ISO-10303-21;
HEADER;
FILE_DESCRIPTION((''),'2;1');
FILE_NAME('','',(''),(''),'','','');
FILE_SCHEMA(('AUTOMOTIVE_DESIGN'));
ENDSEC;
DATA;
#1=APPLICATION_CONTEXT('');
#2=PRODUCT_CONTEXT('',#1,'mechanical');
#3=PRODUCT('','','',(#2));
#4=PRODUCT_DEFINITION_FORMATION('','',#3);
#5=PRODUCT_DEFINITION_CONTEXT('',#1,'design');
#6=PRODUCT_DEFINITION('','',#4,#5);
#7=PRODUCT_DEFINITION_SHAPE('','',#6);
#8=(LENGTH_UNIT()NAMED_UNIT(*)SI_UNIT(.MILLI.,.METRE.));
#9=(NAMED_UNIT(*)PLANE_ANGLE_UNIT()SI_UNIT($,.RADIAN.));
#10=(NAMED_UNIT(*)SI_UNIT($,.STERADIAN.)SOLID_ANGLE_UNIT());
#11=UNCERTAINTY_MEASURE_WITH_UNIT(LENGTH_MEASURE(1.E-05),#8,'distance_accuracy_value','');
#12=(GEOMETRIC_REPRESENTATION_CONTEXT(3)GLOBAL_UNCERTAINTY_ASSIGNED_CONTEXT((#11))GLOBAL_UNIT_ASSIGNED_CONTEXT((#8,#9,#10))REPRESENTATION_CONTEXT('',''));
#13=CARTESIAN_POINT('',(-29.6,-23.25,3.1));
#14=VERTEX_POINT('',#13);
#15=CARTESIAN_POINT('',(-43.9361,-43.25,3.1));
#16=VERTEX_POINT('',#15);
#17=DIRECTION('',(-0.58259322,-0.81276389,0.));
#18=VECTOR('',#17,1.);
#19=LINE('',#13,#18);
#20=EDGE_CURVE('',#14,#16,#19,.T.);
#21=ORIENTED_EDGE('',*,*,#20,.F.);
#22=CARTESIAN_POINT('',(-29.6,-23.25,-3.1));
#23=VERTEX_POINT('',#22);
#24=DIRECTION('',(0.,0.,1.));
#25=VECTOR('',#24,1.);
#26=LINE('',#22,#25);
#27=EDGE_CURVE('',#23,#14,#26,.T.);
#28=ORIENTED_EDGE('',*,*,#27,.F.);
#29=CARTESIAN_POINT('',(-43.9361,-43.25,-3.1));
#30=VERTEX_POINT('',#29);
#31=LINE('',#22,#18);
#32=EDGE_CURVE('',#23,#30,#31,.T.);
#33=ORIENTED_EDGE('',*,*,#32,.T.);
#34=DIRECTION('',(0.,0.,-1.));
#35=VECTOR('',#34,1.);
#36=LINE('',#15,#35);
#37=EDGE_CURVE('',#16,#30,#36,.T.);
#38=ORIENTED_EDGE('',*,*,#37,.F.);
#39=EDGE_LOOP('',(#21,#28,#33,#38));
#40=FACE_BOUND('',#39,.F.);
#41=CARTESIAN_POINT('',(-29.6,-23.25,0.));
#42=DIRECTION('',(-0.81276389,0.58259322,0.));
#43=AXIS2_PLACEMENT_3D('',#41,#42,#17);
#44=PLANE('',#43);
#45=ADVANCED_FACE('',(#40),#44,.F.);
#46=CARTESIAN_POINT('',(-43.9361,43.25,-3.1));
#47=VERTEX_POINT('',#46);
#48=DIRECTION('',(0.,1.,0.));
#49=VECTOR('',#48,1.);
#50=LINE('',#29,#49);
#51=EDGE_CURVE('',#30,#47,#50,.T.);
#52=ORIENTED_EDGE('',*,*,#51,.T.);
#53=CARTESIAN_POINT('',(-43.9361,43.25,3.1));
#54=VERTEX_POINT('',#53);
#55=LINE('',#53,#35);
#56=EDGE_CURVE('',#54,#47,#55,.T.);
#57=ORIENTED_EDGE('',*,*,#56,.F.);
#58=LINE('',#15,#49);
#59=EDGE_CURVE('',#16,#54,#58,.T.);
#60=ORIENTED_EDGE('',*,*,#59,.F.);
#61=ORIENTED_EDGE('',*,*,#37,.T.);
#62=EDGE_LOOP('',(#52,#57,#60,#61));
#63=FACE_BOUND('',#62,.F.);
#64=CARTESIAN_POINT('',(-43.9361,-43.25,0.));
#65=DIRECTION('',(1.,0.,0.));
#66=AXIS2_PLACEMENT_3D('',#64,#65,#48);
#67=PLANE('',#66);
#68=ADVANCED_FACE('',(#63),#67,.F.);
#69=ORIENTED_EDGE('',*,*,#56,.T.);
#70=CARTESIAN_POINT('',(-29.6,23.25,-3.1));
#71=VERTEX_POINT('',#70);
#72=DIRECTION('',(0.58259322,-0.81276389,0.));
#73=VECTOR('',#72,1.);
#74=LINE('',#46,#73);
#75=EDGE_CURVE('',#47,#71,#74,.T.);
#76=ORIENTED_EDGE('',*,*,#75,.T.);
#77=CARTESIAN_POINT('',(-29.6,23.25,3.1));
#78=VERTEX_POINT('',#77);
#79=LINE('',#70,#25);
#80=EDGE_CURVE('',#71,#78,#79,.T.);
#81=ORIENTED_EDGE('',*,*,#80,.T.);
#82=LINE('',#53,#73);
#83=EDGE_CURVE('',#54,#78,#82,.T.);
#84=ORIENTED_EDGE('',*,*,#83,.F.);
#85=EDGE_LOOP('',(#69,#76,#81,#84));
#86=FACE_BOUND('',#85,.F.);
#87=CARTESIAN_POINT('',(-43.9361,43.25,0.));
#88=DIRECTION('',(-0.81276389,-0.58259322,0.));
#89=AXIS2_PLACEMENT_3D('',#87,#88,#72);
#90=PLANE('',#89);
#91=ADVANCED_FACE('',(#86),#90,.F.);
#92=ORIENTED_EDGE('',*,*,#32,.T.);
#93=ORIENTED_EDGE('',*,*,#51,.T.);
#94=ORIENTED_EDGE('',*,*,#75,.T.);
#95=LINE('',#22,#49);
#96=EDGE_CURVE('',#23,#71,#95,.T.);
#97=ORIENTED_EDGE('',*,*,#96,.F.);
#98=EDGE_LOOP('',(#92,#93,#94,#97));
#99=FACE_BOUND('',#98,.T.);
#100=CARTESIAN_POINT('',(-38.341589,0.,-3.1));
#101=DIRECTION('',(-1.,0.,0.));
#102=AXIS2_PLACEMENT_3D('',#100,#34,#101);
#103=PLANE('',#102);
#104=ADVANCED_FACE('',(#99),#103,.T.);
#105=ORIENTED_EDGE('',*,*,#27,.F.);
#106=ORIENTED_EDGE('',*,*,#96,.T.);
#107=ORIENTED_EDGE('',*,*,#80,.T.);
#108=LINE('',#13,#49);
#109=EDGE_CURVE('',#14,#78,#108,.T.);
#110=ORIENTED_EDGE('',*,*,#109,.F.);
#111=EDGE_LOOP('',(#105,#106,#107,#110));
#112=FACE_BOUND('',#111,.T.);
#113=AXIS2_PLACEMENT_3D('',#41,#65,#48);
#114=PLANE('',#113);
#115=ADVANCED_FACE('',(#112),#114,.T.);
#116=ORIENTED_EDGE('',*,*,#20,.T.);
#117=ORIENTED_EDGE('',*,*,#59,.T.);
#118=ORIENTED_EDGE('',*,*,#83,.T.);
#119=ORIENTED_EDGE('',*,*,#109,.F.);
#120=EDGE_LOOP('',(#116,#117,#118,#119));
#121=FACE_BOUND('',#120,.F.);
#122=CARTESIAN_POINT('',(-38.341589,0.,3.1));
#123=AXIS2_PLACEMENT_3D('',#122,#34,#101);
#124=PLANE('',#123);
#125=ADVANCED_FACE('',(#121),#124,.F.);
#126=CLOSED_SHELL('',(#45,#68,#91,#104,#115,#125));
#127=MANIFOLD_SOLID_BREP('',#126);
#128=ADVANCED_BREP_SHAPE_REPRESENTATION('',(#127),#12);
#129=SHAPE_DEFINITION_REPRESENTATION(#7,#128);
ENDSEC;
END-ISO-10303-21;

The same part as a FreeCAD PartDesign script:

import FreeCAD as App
import Part
import Sketcher


def add_polygon(sketch, points):
    """Adds a closed chain of lines whose ends are joined by coincident constraints."""
    first, n = sketch.GeometryCount, len(points)
    for a, b in zip(points, points[1:] + points[:1]):
        sketch.addGeometry(Part.LineSegment(App.Vector(*a, 0), App.Vector(*b, 0)), False)
    for i in range(n):
        sketch.addConstraint(Sketcher.Constraint("Coincident", first + i, 2, first + (i + 1) % n, 1))

doc = App.newDocument("Part")
body = doc.addObject("PartDesign::Body", "Body")

# Sketch on XY plane
sketch1 = body.newObject("Sketcher::SketchObject", "Sketch")
sketch1.AttachmentSupport = (doc.getObject("XY_Plane"), [""])
sketch1.MapMode = "FlatFace"
add_polygon(sketch1, [(-30, 23), (-30, -23), (-44, -43), (-44, 43)])  # lines 0-3
sketch1.addConstraint([
    Sketcher.Constraint("Vertical", 0),
    Sketcher.Constraint("Vertical", 2),
    Sketcher.Constraint("Equal", 1, 3),
    Sketcher.Constraint("DistanceY", 0, 2, 0, 1, 46.5),
    Sketcher.Constraint("DistanceY", 2, 1, 2, 2, 86.5),
    Sketcher.Constraint("DistanceX", 0, 2, -1, 1, 29.6),
    Sketcher.Constraint("DistanceY", 0, 2, -1, 1, 23.25),
    Sketcher.Constraint("DistanceX", 1, 2, -1, 1, 43.936),
])
pad1 = body.newObject("PartDesign::Pad", "Pad")
pad1.Profile = sketch1
pad1.Length = 6.2
pad1.Midplane = True

doc.recompute()
